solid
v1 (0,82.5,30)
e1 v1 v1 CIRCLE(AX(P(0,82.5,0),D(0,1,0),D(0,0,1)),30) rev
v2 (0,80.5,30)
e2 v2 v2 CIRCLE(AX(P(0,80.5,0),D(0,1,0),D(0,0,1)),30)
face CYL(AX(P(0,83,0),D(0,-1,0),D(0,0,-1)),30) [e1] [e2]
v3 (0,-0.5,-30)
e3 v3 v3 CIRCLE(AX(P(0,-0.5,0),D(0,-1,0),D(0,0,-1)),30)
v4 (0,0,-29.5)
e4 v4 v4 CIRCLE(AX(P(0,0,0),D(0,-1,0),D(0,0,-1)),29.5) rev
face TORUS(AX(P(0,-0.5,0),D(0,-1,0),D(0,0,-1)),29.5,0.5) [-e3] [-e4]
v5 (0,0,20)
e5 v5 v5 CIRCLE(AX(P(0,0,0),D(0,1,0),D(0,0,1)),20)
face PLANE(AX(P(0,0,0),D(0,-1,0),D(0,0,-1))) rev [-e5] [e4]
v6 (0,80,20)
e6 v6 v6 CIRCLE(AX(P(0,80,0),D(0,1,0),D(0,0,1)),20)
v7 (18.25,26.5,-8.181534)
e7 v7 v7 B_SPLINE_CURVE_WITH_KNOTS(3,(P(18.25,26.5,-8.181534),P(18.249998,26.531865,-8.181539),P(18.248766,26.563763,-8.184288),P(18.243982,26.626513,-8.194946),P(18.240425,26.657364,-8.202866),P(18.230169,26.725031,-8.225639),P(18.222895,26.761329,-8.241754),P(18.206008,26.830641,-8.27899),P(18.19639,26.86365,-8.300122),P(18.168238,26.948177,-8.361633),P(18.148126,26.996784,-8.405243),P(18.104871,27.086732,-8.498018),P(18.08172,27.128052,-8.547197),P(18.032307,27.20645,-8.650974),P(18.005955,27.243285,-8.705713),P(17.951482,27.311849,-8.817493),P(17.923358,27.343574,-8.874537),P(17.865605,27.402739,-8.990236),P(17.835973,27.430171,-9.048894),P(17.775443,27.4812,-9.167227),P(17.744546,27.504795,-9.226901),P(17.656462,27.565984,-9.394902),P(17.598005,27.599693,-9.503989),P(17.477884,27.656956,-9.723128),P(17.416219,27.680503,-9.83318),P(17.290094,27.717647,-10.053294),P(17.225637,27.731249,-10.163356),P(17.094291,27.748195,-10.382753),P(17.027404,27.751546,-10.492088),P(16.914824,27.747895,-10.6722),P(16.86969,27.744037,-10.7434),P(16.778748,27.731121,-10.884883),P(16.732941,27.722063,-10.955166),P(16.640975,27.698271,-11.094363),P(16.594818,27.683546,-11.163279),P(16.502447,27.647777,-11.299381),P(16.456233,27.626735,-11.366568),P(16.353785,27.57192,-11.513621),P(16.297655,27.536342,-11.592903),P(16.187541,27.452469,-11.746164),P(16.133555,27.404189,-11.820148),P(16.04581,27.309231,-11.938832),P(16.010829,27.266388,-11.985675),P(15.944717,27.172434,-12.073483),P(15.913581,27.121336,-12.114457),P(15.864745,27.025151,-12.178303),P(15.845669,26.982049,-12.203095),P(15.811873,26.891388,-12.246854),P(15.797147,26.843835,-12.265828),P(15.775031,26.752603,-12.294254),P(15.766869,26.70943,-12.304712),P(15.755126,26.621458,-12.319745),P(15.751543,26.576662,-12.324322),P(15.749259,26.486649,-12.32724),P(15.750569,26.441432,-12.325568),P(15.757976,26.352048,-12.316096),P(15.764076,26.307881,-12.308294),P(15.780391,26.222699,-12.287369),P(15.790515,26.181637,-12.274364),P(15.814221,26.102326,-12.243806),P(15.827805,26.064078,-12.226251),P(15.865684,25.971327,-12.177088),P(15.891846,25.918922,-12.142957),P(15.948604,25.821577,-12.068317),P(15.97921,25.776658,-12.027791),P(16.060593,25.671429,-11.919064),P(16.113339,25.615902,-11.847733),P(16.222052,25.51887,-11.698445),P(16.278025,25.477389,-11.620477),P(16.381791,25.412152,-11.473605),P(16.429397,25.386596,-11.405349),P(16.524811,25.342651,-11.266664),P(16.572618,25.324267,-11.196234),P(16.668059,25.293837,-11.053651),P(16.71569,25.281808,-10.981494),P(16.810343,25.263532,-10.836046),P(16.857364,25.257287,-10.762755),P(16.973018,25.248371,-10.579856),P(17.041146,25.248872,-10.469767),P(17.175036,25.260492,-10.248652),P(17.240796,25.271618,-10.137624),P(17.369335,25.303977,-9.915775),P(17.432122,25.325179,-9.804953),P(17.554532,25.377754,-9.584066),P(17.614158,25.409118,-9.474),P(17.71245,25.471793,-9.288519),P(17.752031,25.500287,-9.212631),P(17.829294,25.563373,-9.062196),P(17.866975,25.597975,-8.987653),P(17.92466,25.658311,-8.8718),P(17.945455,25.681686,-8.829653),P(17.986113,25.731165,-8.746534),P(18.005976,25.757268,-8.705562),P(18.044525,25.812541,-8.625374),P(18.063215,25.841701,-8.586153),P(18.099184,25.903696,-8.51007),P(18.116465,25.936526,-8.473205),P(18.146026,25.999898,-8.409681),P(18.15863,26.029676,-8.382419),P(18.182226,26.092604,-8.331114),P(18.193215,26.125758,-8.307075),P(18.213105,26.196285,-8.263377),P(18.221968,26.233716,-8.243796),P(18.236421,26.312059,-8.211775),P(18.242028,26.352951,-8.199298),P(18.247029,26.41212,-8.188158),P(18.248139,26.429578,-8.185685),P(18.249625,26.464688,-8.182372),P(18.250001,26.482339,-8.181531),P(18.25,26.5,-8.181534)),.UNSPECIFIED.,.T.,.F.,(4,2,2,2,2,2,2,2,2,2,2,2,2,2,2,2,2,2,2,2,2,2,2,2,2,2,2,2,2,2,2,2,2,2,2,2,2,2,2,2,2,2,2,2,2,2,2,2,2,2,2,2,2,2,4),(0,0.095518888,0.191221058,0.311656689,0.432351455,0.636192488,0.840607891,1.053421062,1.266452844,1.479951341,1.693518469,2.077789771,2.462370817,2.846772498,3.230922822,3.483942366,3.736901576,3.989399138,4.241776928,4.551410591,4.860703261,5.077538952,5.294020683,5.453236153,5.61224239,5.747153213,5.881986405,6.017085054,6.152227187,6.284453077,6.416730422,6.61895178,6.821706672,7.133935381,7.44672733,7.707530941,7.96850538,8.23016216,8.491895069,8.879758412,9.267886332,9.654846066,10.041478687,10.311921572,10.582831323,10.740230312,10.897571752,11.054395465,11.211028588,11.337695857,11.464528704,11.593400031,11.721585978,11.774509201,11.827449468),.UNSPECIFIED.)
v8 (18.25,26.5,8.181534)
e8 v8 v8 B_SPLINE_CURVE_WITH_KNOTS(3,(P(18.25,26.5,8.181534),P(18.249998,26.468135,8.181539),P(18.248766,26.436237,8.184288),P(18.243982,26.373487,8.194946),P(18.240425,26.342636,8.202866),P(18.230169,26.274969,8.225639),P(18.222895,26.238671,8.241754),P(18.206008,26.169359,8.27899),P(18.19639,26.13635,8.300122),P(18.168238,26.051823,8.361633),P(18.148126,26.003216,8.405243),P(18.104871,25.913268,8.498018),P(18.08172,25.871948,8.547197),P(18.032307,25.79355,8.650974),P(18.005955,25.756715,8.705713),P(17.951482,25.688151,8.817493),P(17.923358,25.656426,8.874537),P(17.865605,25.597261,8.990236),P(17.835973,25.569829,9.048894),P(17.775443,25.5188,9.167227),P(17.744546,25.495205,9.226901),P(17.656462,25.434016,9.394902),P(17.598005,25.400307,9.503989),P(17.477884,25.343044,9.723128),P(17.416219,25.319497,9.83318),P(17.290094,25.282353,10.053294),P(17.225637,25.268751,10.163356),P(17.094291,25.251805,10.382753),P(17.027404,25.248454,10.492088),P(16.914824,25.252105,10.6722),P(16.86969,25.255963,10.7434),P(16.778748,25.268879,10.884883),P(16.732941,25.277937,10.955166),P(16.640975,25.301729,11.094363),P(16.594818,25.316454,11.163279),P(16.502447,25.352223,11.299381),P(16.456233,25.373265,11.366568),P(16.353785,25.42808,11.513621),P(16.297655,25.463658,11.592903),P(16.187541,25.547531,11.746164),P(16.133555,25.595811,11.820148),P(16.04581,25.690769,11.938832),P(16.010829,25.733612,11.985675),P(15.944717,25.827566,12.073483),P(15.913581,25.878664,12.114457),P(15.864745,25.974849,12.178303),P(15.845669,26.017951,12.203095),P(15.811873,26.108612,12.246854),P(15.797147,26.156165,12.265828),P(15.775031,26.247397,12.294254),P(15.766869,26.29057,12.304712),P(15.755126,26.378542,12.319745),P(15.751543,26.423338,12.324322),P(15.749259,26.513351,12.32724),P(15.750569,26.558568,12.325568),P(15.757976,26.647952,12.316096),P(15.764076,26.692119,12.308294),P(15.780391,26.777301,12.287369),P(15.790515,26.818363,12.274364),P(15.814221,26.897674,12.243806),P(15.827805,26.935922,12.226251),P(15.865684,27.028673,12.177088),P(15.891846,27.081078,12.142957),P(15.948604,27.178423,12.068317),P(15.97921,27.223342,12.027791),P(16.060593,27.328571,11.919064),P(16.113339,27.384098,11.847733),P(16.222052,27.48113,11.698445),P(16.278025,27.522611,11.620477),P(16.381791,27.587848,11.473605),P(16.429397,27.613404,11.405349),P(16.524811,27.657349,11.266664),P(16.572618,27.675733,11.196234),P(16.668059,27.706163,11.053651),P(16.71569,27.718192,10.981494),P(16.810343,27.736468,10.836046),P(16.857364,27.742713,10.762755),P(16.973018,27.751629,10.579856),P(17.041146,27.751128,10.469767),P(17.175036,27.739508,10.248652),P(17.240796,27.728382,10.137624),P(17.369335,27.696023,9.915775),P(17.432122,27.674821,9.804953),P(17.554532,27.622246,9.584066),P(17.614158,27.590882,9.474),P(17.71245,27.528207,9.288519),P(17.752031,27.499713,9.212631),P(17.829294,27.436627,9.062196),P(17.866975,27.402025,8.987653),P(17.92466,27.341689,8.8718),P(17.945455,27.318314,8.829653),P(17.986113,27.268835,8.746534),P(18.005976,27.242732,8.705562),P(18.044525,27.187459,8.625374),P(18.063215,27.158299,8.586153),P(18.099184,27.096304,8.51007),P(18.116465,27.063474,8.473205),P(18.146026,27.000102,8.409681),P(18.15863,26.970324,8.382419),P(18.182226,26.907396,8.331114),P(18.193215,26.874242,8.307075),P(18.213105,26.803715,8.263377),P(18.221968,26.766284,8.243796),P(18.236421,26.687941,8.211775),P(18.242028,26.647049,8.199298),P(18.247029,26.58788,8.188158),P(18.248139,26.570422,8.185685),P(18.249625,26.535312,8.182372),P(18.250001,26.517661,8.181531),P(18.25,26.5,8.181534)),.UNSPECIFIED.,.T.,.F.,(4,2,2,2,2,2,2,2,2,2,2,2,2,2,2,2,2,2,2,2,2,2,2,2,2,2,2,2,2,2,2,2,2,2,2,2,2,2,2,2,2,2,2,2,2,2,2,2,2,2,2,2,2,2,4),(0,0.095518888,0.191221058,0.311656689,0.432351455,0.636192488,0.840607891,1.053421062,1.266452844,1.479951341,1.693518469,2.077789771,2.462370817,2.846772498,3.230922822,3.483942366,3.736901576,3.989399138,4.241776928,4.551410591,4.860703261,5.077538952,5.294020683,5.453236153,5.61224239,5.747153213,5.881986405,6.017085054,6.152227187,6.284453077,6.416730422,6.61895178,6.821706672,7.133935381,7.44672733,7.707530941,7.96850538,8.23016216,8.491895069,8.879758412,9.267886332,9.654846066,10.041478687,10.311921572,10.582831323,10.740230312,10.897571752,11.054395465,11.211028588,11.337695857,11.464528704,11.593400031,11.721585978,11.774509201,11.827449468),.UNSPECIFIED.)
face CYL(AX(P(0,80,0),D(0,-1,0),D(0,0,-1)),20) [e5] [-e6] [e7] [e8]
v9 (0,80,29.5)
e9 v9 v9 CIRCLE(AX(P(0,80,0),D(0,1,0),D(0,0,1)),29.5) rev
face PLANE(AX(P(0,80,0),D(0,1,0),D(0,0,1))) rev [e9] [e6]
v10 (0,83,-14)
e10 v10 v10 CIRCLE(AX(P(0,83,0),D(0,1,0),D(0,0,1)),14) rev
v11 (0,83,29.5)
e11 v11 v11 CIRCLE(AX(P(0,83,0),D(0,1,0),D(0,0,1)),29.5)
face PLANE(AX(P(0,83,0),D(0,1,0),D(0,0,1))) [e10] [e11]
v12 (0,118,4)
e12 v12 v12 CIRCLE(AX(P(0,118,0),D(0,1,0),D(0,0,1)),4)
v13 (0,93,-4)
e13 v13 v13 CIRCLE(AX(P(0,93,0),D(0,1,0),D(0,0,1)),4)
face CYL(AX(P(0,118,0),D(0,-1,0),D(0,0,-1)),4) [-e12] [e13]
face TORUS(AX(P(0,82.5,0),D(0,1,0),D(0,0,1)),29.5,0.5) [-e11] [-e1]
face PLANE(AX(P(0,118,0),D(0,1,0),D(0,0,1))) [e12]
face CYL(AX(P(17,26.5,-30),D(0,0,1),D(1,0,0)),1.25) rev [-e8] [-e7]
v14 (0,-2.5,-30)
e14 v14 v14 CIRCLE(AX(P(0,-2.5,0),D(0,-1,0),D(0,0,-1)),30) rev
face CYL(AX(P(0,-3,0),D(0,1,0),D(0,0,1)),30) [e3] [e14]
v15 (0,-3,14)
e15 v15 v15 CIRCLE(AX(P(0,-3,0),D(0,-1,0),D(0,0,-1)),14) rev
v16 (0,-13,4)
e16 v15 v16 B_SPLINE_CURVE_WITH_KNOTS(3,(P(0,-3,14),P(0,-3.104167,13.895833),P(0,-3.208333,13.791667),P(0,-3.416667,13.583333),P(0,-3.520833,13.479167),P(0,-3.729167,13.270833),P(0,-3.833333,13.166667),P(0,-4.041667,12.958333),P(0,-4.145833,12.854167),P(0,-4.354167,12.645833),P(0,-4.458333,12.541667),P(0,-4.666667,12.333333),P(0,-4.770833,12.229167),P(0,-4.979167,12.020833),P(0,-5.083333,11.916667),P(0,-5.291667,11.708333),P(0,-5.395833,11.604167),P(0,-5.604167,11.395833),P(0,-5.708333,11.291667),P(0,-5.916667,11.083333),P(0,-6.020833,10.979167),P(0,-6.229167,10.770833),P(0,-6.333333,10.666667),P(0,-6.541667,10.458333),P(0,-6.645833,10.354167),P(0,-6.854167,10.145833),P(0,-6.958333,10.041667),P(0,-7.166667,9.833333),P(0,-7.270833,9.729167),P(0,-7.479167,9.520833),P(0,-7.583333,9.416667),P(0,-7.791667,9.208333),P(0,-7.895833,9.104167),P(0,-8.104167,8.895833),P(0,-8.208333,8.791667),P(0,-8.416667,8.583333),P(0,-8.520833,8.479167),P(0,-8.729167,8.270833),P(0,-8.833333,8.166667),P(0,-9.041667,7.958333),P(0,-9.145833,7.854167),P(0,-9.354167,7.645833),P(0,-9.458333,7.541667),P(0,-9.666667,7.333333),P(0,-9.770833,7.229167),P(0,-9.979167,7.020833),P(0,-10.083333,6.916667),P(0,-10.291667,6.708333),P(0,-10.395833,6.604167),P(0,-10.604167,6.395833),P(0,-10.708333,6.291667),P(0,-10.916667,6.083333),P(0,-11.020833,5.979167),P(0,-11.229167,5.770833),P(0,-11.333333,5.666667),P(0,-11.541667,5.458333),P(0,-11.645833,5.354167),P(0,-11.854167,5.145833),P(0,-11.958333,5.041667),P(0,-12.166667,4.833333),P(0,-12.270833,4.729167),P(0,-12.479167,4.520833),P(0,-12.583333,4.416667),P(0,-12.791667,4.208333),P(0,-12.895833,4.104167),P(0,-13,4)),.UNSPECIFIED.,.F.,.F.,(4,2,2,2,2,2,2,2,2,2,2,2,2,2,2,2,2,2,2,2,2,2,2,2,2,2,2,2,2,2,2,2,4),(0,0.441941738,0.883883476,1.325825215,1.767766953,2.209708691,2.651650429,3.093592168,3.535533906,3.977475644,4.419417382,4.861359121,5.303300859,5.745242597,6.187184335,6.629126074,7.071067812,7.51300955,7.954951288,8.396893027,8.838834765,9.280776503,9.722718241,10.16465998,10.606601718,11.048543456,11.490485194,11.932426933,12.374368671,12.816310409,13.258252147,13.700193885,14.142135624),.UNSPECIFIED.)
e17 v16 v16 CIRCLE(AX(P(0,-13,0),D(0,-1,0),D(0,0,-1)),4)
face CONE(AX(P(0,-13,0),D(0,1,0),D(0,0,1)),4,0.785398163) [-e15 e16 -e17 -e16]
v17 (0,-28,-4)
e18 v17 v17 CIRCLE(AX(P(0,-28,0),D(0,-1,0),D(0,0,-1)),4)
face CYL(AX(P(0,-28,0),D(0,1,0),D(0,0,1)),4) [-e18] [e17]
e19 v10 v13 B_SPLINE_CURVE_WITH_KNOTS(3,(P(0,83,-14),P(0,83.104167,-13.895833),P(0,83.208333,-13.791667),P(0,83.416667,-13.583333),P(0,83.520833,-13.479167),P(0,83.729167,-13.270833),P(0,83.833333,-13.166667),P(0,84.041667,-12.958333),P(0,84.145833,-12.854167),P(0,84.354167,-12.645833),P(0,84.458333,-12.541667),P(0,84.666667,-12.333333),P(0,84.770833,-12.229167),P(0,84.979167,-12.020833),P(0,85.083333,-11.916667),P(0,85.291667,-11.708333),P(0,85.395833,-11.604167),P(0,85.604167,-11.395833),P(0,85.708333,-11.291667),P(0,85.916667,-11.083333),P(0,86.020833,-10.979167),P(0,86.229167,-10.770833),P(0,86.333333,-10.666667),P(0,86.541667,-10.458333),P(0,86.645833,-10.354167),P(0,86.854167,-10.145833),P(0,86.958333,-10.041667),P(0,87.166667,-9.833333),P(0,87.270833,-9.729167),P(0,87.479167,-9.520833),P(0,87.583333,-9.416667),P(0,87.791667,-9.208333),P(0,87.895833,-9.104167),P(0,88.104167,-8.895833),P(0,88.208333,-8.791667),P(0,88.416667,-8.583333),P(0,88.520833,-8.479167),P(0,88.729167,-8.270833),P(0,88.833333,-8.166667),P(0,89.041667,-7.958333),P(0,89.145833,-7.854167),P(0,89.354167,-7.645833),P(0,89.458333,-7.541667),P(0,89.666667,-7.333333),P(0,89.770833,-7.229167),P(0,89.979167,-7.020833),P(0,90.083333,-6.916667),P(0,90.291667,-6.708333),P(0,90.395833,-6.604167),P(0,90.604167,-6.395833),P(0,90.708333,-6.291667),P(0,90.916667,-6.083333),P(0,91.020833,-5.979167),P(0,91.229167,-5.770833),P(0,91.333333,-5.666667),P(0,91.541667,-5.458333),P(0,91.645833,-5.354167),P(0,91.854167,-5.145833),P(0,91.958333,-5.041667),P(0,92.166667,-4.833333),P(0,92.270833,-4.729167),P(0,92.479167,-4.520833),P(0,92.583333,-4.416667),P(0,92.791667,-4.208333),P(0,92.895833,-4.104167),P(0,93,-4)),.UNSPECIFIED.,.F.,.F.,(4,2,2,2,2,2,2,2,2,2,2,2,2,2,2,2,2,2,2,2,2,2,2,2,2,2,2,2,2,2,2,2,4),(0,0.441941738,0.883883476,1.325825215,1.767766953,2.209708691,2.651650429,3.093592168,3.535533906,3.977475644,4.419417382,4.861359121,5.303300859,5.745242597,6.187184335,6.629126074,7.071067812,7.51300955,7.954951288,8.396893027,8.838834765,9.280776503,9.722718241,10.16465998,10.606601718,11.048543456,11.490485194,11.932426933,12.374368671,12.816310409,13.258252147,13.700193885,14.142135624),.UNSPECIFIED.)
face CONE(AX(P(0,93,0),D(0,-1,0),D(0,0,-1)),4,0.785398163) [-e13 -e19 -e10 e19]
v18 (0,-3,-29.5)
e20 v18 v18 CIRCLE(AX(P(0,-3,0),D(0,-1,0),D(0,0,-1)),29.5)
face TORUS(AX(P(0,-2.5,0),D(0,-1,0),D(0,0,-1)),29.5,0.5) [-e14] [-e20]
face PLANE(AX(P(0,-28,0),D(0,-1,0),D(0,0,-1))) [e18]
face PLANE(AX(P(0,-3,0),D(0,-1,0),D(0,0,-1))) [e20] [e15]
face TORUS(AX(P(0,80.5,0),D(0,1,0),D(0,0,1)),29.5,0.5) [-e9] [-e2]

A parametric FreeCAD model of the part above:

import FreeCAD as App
import Part
import Sketcher


def edges_at(feature, points):
    """Names of the edges that pass closest to the given points."""
    edges = feature.Shape.Edges
    near = lambda p: min(range(len(edges)), key=lambda i: edges[i].distToShape(Part.Vertex(*p))[0])
    return sorted({f"Edge{near(p) + 1}" for p in points})

doc = App.newDocument("Part")
body = doc.addObject("PartDesign::Body", "Body")

# Sketch on XZ plane
sketch1 = body.newObject("Sketcher::SketchObject", "Sketch")
sketch1.AttachmentSupport = (doc.getObject("XZ_Plane"), [""])
sketch1.MapMode = "FlatFace"
sketch1.addGeometry(Part.Circle(App.Vector(0, 0, 0), App.Vector(0, 0, 1), 20), False)
sketch1.addConstraint(Sketcher.Constraint("Coincident", 0, 3, -1, 1))
sketch1.addConstraint(Sketcher.Constraint("Diameter", 0, 40.0))
pad1 = body.newObject("PartDesign::Pad", "Pad")
pad1.Profile = sketch1
pad1.Length = 80
pad1.Reversed = True

# Sketch on XZ plane
sketch2 = body.newObject("Sketcher::SketchObject", "Sketch001")
sketch2.AttachmentSupport = (doc.getObject("XZ_Plane"), [""])
sketch2.MapMode = "FlatFace"
sketch2.AttachmentOffset = App.Placement(App.Vector(0, 0, -80), App.Rotation())
sketch2.addGeometry(Part.Circle(App.Vector(0, 0, 0), App.Vector(0, 0, 1), 30), False)
sketch2.addConstraint(Sketcher.Constraint("Coincident", 0, 3, -1, 1))
sketch2.addConstraint(Sketcher.Constraint("Diameter", 0, 60.0))
pad2 = body.newObject("PartDesign::Pad", "Pad001")
pad2.Profile = sketch2
pad2.Length = 3
pad2.Reversed = True

# Sketch on XZ plane
sketch3 = body.newObject("Sketcher::SketchObject", "Sketch002")
sketch3.AttachmentSupport = (doc.getObject("XZ_Plane"), [""])
sketch3.MapMode = "FlatFace"
sketch3.AttachmentOffset = App.Placement(App.Vector(0, 0, 3), App.Rotation())
sketch3.addGeometry(Part.Circle(App.Vector(0, 0, 0), App.Vector(0, 0, 1), 30), False)
sketch3.addConstraint(Sketcher.Constraint("Coincident", 0, 3, -1, 1))
sketch3.addConstraint(Sketcher.Constraint("Diameter", 0, 60.0))
pad3 = body.newObject("PartDesign::Pad", "Pad002")
pad3.Profile = sketch3
pad3.Length = 3
pad3.Reversed = True

# Sketch on XY plane
sketch4 = body.newObject("Sketcher::SketchObject", "Sketch003")
sketch4.AttachmentSupport = (doc.getObject("XY_Plane"), [""])
sketch4.MapMode = "FlatFace"
sketch4.addGeometry(Part.Circle(App.Vector(17, 26.5, 0), App.Vector(0, 0, 1), 1.25), False)
sketch4.addConstraint(Sketcher.Constraint("Diameter", 0, 2.5))
sketch4.addConstraint(Sketcher.Constraint("DistanceX", -1, 1, 0, 3, 17.0))
sketch4.addConstraint(Sketcher.Constraint("DistanceY", -1, 1, 0, 3, 26.5))
pocket1 = body.newObject("PartDesign::Pocket", "Pocket")
pocket1.Profile = sketch4
pocket1.Type = "ThroughAll"
pocket1.Midplane = True
doc.recompute()

fillet = body.newObject("PartDesign::Fillet", "Fillet")
fillet.Base = (pocket1, edges_at(pocket1, [
    (0, 0, -30),
    (0, -3, -30),
    (0, 80, -30),
    (0, 83, -30),
]))
fillet.Radius = 0.5

# Sketch on XZ plane
sketch5 = body.newObject("Sketcher::SketchObject", "Sketch004")
sketch5.AttachmentSupport = (doc.getObject("XZ_Plane"), [""])
sketch5.MapMode = "FlatFace"
sketch5.AttachmentOffset = App.Placement(App.Vector(0, 0, -83), App.Rotation())
sketch5.addGeometry(Part.Circle(App.Vector(0, 0, 0), App.Vector(0, 0, 1), 4), False)
sketch5.addConstraint(Sketcher.Constraint("Coincident", 0, 3, -1, 1))
sketch5.addConstraint(Sketcher.Constraint("Diameter", 0, 8.0))
pad4 = body.newObject("PartDesign::Pad", "Pad003")
pad4.Profile = sketch5
pad4.Length = 35
pad4.Reversed = True

# Sketch on XZ plane
sketch6 = body.newObject("Sketcher::SketchObject", "Sketch005")
sketch6.AttachmentSupport = (doc.getObject("XZ_Plane"), [""])
sketch6.MapMode = "FlatFace"
sketch6.AttachmentOffset = App.Placement(App.Vector(0, 0, 28), App.Rotation())
sketch6.addGeometry(Part.Circle(App.Vector(0, 0, 0), App.Vector(0, 0, 1), 4), False)
sketch6.addConstraint(Sketcher.Constraint("Coincident", 0, 3, -1, 1))
sketch6.addConstraint(Sketcher.Constraint("Diameter", 0, 8.0))
pad5 = body.newObject("PartDesign::Pad", "Pad004")
pad5.Profile = sketch6
pad5.Length = 25
pad5.Reversed = True
doc.recompute()

chamfer = body.newObject("PartDesign::Chamfer", "Chamfer")
chamfer.Base = (pad5, edges_at(pad5, [(0, 83, -4)]))
chamfer.Size = 10
doc.recompute()

chamfer2 = body.newObject("PartDesign::Chamfer", "Chamfer001")
chamfer2.Base = (chamfer, edges_at(chamfer, [(0, -3, -4)]))
chamfer2.Size = 10

doc.recompute()
